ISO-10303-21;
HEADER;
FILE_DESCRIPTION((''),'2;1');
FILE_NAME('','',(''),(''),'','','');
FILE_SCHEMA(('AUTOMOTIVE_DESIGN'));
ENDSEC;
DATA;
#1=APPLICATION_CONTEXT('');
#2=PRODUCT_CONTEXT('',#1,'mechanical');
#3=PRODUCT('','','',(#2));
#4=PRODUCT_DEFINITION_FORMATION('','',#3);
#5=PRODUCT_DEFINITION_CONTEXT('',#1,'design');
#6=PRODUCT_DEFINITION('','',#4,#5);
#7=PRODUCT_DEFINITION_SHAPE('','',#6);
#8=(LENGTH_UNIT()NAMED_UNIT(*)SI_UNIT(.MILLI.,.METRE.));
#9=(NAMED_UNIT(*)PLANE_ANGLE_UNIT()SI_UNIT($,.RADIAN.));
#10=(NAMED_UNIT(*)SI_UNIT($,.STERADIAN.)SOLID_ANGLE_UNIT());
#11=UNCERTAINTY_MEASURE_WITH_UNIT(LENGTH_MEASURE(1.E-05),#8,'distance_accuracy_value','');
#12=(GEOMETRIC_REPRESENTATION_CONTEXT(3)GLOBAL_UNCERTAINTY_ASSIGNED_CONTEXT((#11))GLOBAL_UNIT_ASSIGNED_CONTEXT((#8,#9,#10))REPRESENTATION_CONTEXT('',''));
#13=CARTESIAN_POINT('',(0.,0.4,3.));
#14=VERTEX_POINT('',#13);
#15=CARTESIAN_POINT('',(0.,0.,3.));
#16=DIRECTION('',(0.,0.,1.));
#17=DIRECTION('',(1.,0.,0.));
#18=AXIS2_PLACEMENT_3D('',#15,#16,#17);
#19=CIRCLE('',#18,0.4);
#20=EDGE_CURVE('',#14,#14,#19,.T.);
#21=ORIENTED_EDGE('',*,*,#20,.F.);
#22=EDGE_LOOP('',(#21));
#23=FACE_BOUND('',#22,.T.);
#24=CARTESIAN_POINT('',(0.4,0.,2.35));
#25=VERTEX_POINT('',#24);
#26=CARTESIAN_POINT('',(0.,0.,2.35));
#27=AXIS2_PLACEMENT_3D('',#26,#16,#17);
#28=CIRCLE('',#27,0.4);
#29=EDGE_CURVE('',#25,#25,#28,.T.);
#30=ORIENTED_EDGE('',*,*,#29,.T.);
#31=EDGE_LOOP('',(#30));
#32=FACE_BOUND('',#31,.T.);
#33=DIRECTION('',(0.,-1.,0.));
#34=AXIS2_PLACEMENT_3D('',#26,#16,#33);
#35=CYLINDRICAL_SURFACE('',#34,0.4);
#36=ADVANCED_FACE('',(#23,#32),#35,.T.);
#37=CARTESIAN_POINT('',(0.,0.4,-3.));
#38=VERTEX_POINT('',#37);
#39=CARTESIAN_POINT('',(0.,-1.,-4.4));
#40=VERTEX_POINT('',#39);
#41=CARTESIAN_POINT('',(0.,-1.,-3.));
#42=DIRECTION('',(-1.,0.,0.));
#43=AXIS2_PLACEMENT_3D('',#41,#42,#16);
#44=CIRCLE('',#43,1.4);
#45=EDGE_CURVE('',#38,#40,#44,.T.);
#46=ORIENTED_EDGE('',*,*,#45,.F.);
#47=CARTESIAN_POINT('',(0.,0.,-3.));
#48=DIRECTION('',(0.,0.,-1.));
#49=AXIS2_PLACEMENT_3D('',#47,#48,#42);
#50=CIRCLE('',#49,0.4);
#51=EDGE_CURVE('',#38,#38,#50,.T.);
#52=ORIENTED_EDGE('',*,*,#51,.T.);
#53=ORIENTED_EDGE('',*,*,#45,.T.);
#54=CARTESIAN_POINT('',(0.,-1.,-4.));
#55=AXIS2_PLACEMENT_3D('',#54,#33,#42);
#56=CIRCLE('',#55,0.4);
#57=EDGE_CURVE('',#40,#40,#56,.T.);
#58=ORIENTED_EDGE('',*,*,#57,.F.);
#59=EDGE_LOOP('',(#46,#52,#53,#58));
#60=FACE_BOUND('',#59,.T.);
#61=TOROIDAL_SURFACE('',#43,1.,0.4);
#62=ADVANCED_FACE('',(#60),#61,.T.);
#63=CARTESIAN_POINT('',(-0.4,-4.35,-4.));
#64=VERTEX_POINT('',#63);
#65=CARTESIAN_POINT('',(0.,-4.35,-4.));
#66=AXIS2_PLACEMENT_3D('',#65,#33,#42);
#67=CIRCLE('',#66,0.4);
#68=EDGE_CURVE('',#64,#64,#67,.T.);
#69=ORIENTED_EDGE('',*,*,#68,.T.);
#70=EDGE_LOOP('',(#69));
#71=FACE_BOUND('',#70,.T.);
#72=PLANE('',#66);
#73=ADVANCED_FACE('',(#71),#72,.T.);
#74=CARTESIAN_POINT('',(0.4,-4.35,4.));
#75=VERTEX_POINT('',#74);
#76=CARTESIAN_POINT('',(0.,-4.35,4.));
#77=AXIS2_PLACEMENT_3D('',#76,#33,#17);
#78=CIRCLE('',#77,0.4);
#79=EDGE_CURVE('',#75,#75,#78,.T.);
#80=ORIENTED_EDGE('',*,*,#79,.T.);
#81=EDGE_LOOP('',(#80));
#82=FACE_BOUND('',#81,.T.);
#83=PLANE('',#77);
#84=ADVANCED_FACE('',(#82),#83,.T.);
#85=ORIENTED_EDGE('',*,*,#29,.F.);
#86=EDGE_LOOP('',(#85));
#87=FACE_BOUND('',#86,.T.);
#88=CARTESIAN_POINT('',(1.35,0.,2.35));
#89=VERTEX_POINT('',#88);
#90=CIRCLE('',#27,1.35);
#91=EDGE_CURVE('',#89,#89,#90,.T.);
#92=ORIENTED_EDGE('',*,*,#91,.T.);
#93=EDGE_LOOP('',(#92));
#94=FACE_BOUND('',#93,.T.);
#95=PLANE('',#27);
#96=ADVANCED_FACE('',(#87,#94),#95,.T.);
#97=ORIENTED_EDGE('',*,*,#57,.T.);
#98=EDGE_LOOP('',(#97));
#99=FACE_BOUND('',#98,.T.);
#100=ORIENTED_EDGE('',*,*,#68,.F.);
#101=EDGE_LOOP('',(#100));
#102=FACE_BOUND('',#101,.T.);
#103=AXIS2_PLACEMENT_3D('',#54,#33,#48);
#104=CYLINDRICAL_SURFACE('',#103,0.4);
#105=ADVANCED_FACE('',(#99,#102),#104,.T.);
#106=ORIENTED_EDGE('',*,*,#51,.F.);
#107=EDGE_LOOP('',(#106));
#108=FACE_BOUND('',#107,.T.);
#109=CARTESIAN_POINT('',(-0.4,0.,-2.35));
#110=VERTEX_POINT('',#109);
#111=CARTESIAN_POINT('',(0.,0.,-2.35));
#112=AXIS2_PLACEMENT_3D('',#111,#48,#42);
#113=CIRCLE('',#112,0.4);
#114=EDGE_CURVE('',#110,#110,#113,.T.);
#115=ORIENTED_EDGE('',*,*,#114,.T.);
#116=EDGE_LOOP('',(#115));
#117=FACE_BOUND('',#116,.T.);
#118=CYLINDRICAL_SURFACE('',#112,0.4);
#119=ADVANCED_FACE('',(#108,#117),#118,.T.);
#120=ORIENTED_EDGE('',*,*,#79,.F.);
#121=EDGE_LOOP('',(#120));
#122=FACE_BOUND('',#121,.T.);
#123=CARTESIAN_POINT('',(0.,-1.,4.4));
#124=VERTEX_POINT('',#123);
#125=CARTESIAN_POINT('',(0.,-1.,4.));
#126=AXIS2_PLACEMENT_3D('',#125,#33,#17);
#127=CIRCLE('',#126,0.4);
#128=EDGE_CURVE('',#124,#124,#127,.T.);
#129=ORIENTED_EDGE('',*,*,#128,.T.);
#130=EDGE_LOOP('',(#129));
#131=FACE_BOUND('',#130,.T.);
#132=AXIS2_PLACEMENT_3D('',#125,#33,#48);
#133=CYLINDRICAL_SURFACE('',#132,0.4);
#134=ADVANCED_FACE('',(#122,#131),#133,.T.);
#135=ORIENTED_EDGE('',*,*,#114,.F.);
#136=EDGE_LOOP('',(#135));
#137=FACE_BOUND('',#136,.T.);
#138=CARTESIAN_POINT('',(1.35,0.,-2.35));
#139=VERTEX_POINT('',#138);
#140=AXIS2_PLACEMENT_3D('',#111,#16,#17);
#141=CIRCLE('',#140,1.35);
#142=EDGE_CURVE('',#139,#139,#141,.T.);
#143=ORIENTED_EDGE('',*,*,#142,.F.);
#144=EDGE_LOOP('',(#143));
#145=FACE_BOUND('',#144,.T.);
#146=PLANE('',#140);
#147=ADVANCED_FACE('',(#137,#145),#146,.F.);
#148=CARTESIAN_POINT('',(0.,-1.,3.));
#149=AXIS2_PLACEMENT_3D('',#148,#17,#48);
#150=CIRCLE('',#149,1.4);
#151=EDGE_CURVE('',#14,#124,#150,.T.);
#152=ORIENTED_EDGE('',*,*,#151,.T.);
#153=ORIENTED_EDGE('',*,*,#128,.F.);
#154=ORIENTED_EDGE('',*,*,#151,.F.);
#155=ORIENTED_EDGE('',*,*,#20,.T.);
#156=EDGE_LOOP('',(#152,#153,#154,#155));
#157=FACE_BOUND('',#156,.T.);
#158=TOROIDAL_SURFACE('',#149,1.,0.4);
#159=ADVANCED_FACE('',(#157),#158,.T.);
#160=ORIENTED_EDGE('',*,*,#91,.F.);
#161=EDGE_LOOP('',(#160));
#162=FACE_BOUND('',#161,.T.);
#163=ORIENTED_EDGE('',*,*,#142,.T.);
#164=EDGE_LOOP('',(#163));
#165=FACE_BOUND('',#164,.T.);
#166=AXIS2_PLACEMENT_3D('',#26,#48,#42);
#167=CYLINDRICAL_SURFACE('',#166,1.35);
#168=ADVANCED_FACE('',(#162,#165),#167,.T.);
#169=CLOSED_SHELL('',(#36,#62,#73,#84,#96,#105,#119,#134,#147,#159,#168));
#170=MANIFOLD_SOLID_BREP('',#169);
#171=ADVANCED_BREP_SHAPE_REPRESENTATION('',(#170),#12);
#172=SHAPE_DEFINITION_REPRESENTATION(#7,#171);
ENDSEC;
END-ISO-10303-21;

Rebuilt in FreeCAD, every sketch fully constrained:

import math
import FreeCAD as App
import Part
import Sketcher

V = App.Vector

doc = App.newDocument("Part")
body = doc.addObject("PartDesign::Body", "Body")

sketch1 = doc.addObject("Sketcher::SketchObject", "Sketch")
body.addObject(sketch1)
sketch1.AttachmentSupport = (doc.XY_Plane, [""])
sketch1.MapMode = "FlatFace"
sketch1.addGeometry(Part.Circle(V(0, 0, 0), V(0, 0, 1), 1.4), False)
sketch1.addConstraint(Sketcher.Constraint("Coincident", 0, 3, -1, 1))
sketch1.addConstraint(Sketcher.Constraint("Diameter", 0, 2.7))
pad1 = doc.addObject("PartDesign::Pad", "Pad")
body.addObject(pad1)
pad1.Profile = sketch1
pad1.Length = 4.7
pad1.Midplane = True

sketch2 = doc.addObject("Sketcher::SketchObject", "Sketch001")
body.addObject(sketch2)
sketch2.AttachmentSupport = (doc.XY_Plane, [""])
sketch2.MapMode = "FlatFace"
sketch2.AttachmentOffset = App.Placement(V(0, 0, -2.35), App.Rotation())
sketch2.addGeometry(Part.Circle(V(0, 0, 0), V(0, 0, 1), 0.4), False)
sketch2.addConstraint(Sketcher.Constraint("Coincident", 0, 3, -1, 1))
sketch2.addConstraint(Sketcher.Constraint("Diameter", 0, 0.8))

sketch3 = doc.addObject("Sketcher::SketchObject", "Sketch002")
body.addObject(sketch3)
sketch3.AttachmentSupport = (doc.YZ_Plane, [""])
sketch3.MapMode = "FlatFace"
sketch3.addGeometry(Part.LineSegment(V(0, -2.4, 0), V(0, -3, 0)), False)
sketch3.addGeometry(Part.ArcOfCircle(Part.Circle(V(-1, -3, 0), V(0, 0, 1), 1), math.radians(-90), math.radians(0)), False)
sketch3.addGeometry(Part.LineSegment(V(-1, -4, 0), V(-4.3, -4, 0)), False)
sketch3.addConstraint(Sketcher.Constraint("Tangent", 0, 2, 1, 2))
sketch3.addConstraint(Sketcher.Constraint("Tangent", 1, 1, 2, 1))
sketch3.addConstraint(Sketcher.Constraint("Vertical", 0))
sketch3.addConstraint(Sketcher.Constraint("Horizontal", 2))
sketch3.addConstraint(Sketcher.Constraint("PointOnObject", 0, 1, -2))
sketch3.addConstraint(Sketcher.Constraint("Radius", 1, 1.0))
sketch3.addConstraint(Sketcher.Constraint("DistanceY", 1, 3, -1, 1, 3.0))
sketch3.addConstraint(Sketcher.Constraint("DistanceX", 2, 2, 2, 1, 3.35))
sketch3.addConstraint(Sketcher.Constraint("DistanceY", 0, 2, 0, 1, 0.65))
doc.recompute()

additivepipe = doc.addObject("PartDesign::AdditivePipe", "AdditivePipe")
body.addObject(additivepipe)
additivepipe.Profile = sketch2
additivepipe.Spine = (sketch3, ["Edge1", "Edge2", "Edge3"])

sketch4 = doc.addObject("Sketcher::SketchObject", "Sketch003")
body.addObject(sketch4)
sketch4.AttachmentSupport = (doc.XY_Plane, [""])
sketch4.MapMode = "FlatFace"
sketch4.AttachmentOffset = App.Placement(V(0, 0, 2.35), App.Rotation())
sketch4.addGeometry(Part.Circle(V(0, 0, 0), V(0, 0, 1), 0.4), False)
sketch4.addConstraint(Sketcher.Constraint("Coincident", 0, 3, -1, 1))
sketch4.addConstraint(Sketcher.Constraint("Diameter", 0, 0.8))

sketch5 = doc.addObject("Sketcher::SketchObject", "Sketch004")
body.addObject(sketch5)
sketch5.AttachmentSupport = (doc.YZ_Plane, [""])
sketch5.MapMode = "FlatFace"
sketch5.addGeometry(Part.LineSegment(V(0, 2.4, 0), V(0, 3, 0)), False)
sketch5.addGeometry(Part.ArcOfCircle(Part.Circle(V(-1, 3, 0), V(0, 0, 1), 1), math.radians(0), math.radians(90)), False)
sketch5.addGeometry(Part.LineSegment(V(-1, 4, 0), V(-4.3, 4, 0)), False)
sketch5.addConstraint(Sketcher.Constraint("Tangent", 0, 2, 1, 1))
sketch5.addConstraint(Sketcher.Constraint("Tangent", 1, 2, 2, 1))
sketch5.addConstraint(Sketcher.Constraint("Vertical", 0))
sketch5.addConstraint(Sketcher.Constraint("Horizontal", 2))
sketch5.addConstraint(Sketcher.Constraint("PointOnObject", 0, 1, -2))
sketch5.addConstraint(Sketcher.Constraint("Radius", 1, 1.0))
sketch5.addConstraint(Sketcher.Constraint("DistanceY", -1, 1, 1, 3, 3.0))
sketch5.addConstraint(Sketcher.Constraint("DistanceX", 2, 2, 2, 1, 3.35))
sketch5.addConstraint(Sketcher.Constraint("DistanceY", 0, 1, 0, 2, 0.65))
doc.recompute()

additivepipe2 = doc.addObject("PartDesign::AdditivePipe", "AdditivePipe001")
body.addObject(additivepipe2)
additivepipe2.Profile = sketch4
additivepipe2.Spine = (sketch5, ["Edge1", "Edge2", "Edge3"])

doc.recompute()
